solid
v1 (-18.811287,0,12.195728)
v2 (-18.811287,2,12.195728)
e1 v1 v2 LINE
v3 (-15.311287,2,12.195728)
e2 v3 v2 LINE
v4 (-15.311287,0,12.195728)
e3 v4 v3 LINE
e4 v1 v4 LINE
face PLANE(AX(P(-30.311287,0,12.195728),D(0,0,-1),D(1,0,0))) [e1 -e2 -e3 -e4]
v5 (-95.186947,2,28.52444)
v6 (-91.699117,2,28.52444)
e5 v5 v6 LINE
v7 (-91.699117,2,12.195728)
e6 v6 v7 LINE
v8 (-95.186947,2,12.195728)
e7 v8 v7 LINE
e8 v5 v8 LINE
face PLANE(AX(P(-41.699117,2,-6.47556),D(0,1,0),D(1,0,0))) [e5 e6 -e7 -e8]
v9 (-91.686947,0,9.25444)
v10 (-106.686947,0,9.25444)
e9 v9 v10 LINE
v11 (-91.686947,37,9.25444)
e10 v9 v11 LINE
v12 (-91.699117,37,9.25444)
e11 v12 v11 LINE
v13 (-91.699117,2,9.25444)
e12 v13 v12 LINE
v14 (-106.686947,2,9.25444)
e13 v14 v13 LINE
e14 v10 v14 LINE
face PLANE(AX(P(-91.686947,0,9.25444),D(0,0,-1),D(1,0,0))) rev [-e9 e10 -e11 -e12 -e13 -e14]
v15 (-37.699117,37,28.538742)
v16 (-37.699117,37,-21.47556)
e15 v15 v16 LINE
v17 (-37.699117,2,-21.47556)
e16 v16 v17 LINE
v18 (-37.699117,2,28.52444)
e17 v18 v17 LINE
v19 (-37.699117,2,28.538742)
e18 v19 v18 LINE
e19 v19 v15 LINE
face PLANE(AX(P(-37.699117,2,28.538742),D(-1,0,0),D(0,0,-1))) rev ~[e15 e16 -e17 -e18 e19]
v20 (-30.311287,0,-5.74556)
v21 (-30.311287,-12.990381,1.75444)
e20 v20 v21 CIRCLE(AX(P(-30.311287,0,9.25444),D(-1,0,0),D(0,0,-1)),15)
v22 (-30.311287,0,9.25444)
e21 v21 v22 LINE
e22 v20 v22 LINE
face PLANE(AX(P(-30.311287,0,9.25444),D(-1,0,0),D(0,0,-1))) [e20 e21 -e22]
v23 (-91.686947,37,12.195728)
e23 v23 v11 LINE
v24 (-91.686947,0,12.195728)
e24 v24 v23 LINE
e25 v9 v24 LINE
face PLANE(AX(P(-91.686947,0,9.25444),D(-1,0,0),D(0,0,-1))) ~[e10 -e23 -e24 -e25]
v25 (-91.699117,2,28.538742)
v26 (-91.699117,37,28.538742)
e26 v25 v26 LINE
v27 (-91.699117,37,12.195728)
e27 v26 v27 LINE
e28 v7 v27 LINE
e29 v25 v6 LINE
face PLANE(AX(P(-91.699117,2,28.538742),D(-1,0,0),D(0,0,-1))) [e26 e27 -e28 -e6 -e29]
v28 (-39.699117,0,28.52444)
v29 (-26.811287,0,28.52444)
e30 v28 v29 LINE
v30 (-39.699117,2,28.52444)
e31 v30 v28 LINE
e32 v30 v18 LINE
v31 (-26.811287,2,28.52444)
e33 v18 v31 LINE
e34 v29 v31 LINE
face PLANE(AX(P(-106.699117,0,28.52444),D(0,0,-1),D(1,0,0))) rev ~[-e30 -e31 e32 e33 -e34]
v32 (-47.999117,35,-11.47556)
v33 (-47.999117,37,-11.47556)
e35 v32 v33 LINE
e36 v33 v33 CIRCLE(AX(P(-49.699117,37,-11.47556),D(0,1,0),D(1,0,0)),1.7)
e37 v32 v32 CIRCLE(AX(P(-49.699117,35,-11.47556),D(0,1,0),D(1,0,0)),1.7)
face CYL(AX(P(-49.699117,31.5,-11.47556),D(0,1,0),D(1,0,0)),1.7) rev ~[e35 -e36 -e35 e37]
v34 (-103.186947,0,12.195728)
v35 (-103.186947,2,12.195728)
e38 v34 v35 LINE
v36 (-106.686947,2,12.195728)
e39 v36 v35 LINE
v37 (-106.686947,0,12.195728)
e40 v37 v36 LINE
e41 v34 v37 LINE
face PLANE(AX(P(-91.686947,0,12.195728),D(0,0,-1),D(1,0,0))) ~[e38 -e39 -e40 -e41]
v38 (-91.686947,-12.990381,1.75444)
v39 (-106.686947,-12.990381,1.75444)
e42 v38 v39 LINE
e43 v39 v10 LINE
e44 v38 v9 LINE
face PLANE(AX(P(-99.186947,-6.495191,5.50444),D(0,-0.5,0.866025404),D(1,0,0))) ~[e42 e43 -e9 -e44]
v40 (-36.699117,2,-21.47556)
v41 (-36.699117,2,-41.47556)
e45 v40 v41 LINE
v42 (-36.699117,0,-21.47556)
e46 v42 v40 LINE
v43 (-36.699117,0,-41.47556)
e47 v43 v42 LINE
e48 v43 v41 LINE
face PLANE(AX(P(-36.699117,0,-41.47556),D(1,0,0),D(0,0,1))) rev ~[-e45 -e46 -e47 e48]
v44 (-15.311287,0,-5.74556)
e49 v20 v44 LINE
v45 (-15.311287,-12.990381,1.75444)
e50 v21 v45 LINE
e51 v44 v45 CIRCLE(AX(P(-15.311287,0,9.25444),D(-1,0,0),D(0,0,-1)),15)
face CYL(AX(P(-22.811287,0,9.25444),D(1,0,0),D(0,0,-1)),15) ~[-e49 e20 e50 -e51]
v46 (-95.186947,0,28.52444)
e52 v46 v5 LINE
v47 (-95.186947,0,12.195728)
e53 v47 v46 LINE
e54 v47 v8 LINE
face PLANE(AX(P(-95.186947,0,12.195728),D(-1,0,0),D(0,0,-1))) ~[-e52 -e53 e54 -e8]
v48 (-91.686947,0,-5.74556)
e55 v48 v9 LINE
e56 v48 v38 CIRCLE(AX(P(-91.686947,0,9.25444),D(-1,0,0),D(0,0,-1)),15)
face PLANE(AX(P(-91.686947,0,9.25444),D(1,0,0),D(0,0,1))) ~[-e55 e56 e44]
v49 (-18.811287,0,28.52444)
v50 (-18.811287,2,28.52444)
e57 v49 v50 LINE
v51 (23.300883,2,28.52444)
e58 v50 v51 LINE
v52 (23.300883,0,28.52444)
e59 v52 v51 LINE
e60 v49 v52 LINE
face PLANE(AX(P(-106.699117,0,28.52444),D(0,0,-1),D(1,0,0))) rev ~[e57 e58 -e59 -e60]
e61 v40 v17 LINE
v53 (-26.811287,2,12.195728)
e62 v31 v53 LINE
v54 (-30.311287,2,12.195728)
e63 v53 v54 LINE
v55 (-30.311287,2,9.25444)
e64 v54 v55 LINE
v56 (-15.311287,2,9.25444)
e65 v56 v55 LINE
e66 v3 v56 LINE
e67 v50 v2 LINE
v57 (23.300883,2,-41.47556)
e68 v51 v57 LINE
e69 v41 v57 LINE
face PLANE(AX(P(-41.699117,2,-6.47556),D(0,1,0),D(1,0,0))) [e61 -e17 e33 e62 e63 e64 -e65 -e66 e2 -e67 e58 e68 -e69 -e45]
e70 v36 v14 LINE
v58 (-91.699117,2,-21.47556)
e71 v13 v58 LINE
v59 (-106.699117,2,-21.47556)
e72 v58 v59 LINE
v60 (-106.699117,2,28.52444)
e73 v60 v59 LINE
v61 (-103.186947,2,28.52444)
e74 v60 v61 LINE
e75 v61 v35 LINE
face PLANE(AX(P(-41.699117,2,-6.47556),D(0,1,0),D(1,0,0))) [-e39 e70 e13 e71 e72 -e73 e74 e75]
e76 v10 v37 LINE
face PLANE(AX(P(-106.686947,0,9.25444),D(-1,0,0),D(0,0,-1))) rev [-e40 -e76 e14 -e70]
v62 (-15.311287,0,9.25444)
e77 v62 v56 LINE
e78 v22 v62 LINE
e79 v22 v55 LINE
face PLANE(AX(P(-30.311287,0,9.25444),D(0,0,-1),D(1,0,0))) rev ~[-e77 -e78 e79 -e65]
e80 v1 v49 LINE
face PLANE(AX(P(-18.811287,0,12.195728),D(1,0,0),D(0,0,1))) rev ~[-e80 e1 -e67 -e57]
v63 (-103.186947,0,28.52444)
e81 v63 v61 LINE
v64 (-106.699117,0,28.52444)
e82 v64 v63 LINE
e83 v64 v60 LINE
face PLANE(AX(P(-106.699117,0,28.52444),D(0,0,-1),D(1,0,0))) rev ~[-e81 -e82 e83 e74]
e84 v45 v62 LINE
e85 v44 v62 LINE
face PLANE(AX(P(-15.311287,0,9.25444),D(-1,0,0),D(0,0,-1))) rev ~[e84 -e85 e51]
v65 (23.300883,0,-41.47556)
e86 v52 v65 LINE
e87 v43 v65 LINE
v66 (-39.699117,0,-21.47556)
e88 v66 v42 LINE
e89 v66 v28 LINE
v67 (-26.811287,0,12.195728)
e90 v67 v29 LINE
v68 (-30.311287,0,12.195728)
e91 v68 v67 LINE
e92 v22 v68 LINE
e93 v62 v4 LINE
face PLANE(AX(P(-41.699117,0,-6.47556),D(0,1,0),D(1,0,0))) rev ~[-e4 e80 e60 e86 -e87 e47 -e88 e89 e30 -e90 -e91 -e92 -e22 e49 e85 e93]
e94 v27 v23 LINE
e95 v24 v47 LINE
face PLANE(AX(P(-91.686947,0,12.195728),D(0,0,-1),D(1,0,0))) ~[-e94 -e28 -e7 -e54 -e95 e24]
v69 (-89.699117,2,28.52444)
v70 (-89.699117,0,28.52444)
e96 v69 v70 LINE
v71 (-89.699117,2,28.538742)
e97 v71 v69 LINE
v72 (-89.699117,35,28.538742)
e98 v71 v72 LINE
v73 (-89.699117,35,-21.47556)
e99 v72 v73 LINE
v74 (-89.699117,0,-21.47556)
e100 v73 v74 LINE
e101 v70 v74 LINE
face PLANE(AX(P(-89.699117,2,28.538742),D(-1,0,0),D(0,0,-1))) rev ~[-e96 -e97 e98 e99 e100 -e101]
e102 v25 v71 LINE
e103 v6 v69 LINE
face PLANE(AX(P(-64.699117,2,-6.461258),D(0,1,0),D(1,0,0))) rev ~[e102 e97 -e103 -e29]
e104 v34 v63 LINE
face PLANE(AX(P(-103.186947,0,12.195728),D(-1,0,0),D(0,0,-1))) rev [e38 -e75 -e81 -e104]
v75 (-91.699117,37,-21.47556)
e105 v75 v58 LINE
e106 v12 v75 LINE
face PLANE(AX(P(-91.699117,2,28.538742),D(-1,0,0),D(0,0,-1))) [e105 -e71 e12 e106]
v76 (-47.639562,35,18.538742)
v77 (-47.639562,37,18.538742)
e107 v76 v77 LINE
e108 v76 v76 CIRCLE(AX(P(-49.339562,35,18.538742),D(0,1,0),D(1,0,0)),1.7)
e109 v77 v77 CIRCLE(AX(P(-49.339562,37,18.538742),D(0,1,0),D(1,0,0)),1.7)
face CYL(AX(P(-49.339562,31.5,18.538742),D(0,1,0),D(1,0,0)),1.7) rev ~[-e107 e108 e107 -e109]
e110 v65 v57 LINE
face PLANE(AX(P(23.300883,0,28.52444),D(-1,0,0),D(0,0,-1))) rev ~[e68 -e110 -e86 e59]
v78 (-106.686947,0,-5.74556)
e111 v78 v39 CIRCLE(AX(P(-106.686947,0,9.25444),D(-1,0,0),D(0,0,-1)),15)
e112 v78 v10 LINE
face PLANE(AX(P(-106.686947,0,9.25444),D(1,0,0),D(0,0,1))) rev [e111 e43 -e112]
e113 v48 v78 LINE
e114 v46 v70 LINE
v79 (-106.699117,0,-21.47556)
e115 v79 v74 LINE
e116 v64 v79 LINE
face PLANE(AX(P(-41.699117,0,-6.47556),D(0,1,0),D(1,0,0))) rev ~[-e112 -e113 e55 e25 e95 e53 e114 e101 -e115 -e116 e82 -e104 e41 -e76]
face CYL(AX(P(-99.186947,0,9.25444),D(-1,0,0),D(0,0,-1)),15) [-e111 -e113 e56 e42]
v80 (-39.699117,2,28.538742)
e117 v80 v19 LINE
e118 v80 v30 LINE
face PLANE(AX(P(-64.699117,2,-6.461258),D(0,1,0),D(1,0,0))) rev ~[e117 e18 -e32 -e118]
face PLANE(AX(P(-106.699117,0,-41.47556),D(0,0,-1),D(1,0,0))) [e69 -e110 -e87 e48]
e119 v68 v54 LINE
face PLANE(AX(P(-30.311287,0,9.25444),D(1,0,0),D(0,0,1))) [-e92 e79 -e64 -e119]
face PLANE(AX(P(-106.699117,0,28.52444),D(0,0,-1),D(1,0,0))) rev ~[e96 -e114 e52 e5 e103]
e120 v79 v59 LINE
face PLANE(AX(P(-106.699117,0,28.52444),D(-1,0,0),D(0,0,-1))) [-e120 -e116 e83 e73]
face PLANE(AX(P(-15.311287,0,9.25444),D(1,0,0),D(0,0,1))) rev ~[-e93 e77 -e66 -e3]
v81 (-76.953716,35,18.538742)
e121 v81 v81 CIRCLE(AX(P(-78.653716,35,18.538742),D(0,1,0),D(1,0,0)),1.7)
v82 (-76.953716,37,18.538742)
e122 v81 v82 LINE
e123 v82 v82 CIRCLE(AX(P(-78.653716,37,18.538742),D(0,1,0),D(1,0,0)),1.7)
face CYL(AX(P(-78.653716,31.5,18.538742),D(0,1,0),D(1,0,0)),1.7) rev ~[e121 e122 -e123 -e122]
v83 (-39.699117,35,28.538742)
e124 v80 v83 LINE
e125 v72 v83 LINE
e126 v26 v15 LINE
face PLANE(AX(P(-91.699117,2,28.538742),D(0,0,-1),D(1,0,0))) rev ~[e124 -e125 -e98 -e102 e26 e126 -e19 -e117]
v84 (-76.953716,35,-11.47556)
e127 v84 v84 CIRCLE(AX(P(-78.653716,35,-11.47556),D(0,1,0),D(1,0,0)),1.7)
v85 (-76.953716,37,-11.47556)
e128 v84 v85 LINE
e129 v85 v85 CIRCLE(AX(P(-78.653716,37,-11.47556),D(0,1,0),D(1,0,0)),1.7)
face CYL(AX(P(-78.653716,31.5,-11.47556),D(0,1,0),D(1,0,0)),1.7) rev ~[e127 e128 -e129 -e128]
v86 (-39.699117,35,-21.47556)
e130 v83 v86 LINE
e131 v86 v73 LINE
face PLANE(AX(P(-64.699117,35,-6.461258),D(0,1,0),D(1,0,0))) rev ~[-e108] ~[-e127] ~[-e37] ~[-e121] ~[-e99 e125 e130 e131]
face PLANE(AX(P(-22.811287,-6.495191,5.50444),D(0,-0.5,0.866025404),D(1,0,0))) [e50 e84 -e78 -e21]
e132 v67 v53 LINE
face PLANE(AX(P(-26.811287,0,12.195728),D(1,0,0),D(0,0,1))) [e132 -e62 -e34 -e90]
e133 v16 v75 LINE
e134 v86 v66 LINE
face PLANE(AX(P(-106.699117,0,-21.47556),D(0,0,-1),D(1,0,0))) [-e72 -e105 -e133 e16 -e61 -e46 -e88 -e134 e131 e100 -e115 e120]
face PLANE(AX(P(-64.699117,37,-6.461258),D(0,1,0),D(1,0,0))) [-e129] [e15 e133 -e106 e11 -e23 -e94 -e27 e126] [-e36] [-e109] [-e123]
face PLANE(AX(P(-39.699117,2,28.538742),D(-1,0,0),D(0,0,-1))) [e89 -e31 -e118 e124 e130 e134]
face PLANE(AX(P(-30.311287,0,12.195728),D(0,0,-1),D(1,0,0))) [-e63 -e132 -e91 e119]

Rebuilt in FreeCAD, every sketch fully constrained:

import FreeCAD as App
import Part
import Sketcher


def add_polygon(sketch, points):
    """Adds a closed chain of lines whose ends are joined by coincident constraints."""
    first, n = sketch.GeometryCount, len(points)
    for a, b in zip(points, points[1:] + points[:1]):
        sketch.addGeometry(Part.LineSegment(App.Vector(*a, 0), App.Vector(*b, 0)), False)
    for i in range(n):
        sketch.addConstraint(Sketcher.Constraint("Coincident", first + i, 2, first + (i + 1) % n, 1))

doc = App.newDocument("Part")
body = doc.addObject("PartDesign::Body", "Body")

sketch1 = body.newObject("Sketcher::SketchObject", "Sketch")
sketch1.AttachmentSupport = (doc.getObject("XZ_Plane"), [""])
sketch1.MapMode = "FlatFace"
add_polygon(sketch1, [(-107, -41), (-107, 29), (23, 29), (23, -41)])
sketch1.addConstraint([
    Sketcher.Constraint("Vertical", 0),
    Sketcher.Constraint("Horizontal", 1),
    Sketcher.Constraint("Vertical", 2),
    Sketcher.Constraint("Horizontal", 3),
    Sketcher.Constraint("DistanceX", 1, 1, 1, 2, 130.0),
    Sketcher.Constraint("DistanceY", 0, 1, 0, 2, 70.0),
    Sketcher.Constraint("DistanceY", -1, 1, 0, 2, 28.52444),
    Sketcher.Constraint("DistanceX", 0, 2, -1, 1, 106.699117),
])
pad1 = body.newObject("PartDesign::Pad", "Pad")
pad1.Profile = sketch1
pad1.Length = 2
pad1.Reversed = True

sketch2 = body.newObject("Sketcher::SketchObject", "Sketch001")
sketch2.AttachmentSupport = (doc.getObject("XZ_Plane"), [""])
sketch2.MapMode = "FlatFace"
sketch2.AttachmentOffset = App.Placement(App.Vector(0, 0, -2), App.Rotation())
add_polygon(sketch2, [(-92, -41), (-92, 29), (-38, 29), (-38, -41)])
sketch2.addConstraint([
    Sketcher.Constraint("Vertical", 0),
    Sketcher.Constraint("Horizontal", 1),
    Sketcher.Constraint("Vertical", 2),
    Sketcher.Constraint("Horizontal", 3),
    Sketcher.Constraint("DistanceX", 1, 1, 1, 2, 54.0),
    Sketcher.Constraint("DistanceY", 0, 1, 0, 2, 70.0),
    Sketcher.Constraint("DistanceX", 0, 2, -1, 1, 91.699117),
    Sketcher.Constraint("DistanceY", -1, 1, 0, 2, 28.538742),
])
pad2 = body.newObject("PartDesign::Pad", "Pad001")
pad2.Profile = sketch2
pad2.Length = 35
pad2.Reversed = True

sketch3 = body.newObject("Sketcher::SketchObject", "Sketch002")
sketch3.AttachmentSupport = (doc.getObject("XZ_Plane"), [""])
sketch3.MapMode = "FlatFace"
sketch3.AttachmentOffset = App.Placement(App.Vector(0, 0, -2), App.Rotation())
add_polygon(sketch3, [(-90, -41), (-90, 29), (-40, 29), (-40, -41)])
sketch3.addConstraint([
    Sketcher.Constraint("Vertical", 0),
    Sketcher.Constraint("Horizontal", 1),
    Sketcher.Constraint("Vertical", 2),
    Sketcher.Constraint("Horizontal", 3),
    Sketcher.Constraint("DistanceX", 1, 1, 1, 2, 50.0),
    Sketcher.Constraint("DistanceY", 0, 1, 0, 2, 70.0),
    Sketcher.Constraint("DistanceX", 0, 2, -1, 1, 89.699117),
    Sketcher.Constraint("DistanceY", -1, 1, 0, 2, 28.538742),
])
pocket1 = body.newObject("PartDesign::Pocket", "Pocket")
pocket1.Profile = sketch3
pocket1.Type = "TwoLengths"
pocket1.Length = 33
pocket1.Length2 = 2

sketch4 = body.newObject("Sketcher::SketchObject", "Sketch003")
sketch4.AttachmentSupport = (doc.getObject("XY_Plane"), [""])
sketch4.MapMode = "FlatFace"
sketch4.AttachmentOffset = App.Placement(App.Vector(0, 0, -41.47556), App.Rotation())
add_polygon(sketch4, [(-39.7, 2), (-39.7, 0), (-89.7, 0), (-89.7, 2)])
sketch4.addConstraint([
    Sketcher.Constraint("Vertical", 0),
    Sketcher.Constraint("Horizontal", 1),
    Sketcher.Constraint("Vertical", 2),
    Sketcher.Constraint("Horizontal", 3),
    Sketcher.Constraint("PointOnObject", 0, 2, -1),
    Sketcher.Constraint("DistanceX", 1, 2, 1, 1, 50.0),
    Sketcher.Constraint("DistanceY", 0, 2, 0, 1, 2.0),
    Sketcher.Constraint("DistanceX", 0, 2, -1, 1, 39.699117),
])
pocket2 = body.newObject("PartDesign::Pocket", "Pocket001")
pocket2.Profile = sketch4
pocket2.Length = 33
pocket2.Reversed = True

sketch5 = body.newObject("Sketcher::SketchObject", "Sketch004")
sketch5.AttachmentSupport = (doc.getObject("XZ_Plane"), [""])
sketch5.MapMode = "FlatFace"
add_polygon(sketch5, [(-107, -21), (-107, -41), (-37, -41), (-37, -21)])
sketch5.addConstraint([
    Sketcher.Constraint("Vertical", 0),
    Sketcher.Constraint("Horizontal", 1),
    Sketcher.Constraint("Vertical", 2),
    Sketcher.Constraint("Horizontal", 3),
    Sketcher.Constraint("DistanceX", 1, 1, 1, 2, 70.0),
    Sketcher.Constraint("DistanceY", 0, 2, 0, 1, 20.0),
    Sketcher.Constraint("DistanceY", 0, 2, -1, 1, 41.47556),
    Sketcher.Constraint("DistanceX", 0, 2, -1, 1, 106.699117),
])
pocket3 = body.newObject("PartDesign::Pocket", "Pocket002")
pocket3.Profile = sketch5
pocket3.Length = 40

sketch6 = body.newObject("Sketcher::SketchObject", "Sketch005")
sketch6.AttachmentSupport = (doc.getObject("XZ_Plane"), [""])
sketch6.MapMode = "FlatFace"
sketch6.AttachmentOffset = App.Placement(App.Vector(0, 0, -35), App.Rotation())
sketch6.addGeometry([
    Part.Circle(App.Vector(-49.3, 18.5, 0), App.Vector(0, 0, 1), 1.7),
    Part.Circle(App.Vector(-49.7, -11.5, 0), App.Vector(0, 0, 1), 1.7),
    Part.Circle(App.Vector(-78.7, 18.5, 0), App.Vector(0, 0, 1), 1.7),
    Part.Circle(App.Vector(-78.7, -11.5, 0), App.Vector(0, 0, 1), 1.7),
], False)
sketch6.addConstraint([
    Sketcher.Constraint("Equal", 0, 1),
    Sketcher.Constraint("Equal", 1, 2),
    Sketcher.Constraint("Equal", 2, 3),
    Sketcher.Constraint("Horizontal", 0, 3, 2, 3),
    Sketcher.Constraint("Horizontal", 1, 3, 3, 3),
    Sketcher.Constraint("Vertical", 2, 3, 3, 3),
    Sketcher.Constraint("Diameter", 0, 3.4),
    Sketcher.Constraint("DistanceX", 2, 3, 1, 3, 28.954599),
    Sketcher.Constraint("DistanceX", 0, 3, -1, 1, 49.339562),
    Sketcher.Constraint("DistanceY", 1, 3, -1, 1, 11.47556),
    Sketcher.Constraint("DistanceY", -1, 1, 0, 3, 18.538742),
    Sketcher.Constraint("DistanceX", 1, 3, -1, 1, 49.699117),
])
doc.recompute()
hole = body.newObject("PartDesign::Hole", "Hole")
hole.Profile = sketch6
hole.ThreadType = "None"
hole.Diameter = 3.4
hole.DepthType = "Dimension"
hole.Depth = 3.5
hole.DrillPoint = "Angled"
hole.DrillPointAngle = 118

sketch7 = body.newObject("Sketcher::SketchObject", "Sketch006")
sketch7.AttachmentSupport = (doc.getObject("XZ_Plane"), [""])
sketch7.MapMode = "FlatFace"
add_polygon(sketch7, [(-30, 9), (-30, -6), (-15, -6), (-15, 9)])
sketch7.addGeometry(Part.LineSegment(App.Vector(-15, 9, 0), App.Vector(-30, 9, 0)), True)
sketch7.addConstraint([
    Sketcher.Constraint("Vertical", 0),
    Sketcher.Constraint("Horizontal", 1),
    Sketcher.Constraint("Vertical", 2),
    Sketcher.Constraint("Horizontal", 3),
    Sketcher.Constraint("Horizontal", 4),
    Sketcher.Constraint("Coincident", 4, 1, 2, 2),
    Sketcher.Constraint("Vertical", 0, 2, 4, 2),
    Sketcher.Constraint("Equal", 4, 0),
    Sketcher.Constraint("DistanceX", 1, 1, 1, 2, 15.0),
    Sketcher.Constraint("DistanceY", 0, 2, -1, 1, 5.74556),
    Sketcher.Constraint("DistanceX", 0, 2, -1, 1, 30.311287),
])
revolution = body.newObject("PartDesign::Revolution", "Revolution")
revolution.Profile = sketch7
revolution.ReferenceAxis = (sketch7, ["Axis0"])
revolution.Angle = 60

sketch8 = body.newObject("Sketcher::SketchObject", "Sketch007")
sketch8.AttachmentSupport = (doc.getObject("XZ_Plane"), [""])
sketch8.MapMode = "FlatFace"
add_polygon(sketch8, [(-30.3, 12.2), (-30.3, 9.3), (-15.3, 9.3), (-15.3, 12.2)])
sketch8.addConstraint([
    Sketcher.Constraint("Vertical", 0),
    Sketcher.Constraint("Horizontal", 1),
    Sketcher.Constraint("Vertical", 2),
    Sketcher.Constraint("Horizontal", 3),
    Sketcher.Constraint("DistanceX", 1, 1, 1, 2, 15.0),
    Sketcher.Constraint("DistanceY", 0, 2, 0, 1, 2.941288),
    Sketcher.Constraint("DistanceY", -1, 1, 0, 2, 9.25444),
    Sketcher.Constraint("DistanceX", 0, 2, -1, 1, 30.311287),
])
pocket4 = body.newObject("PartDesign::Pocket", "Pocket003")
pocket4.Profile = sketch8
pocket4.Length = 55

sketch9 = body.newObject("Sketcher::SketchObject", "Sketch008")
sketch9.AttachmentSupport = (doc.getObject("XZ_Plane"), [""])
sketch9.MapMode = "FlatFace"
add_polygon(sketch9, [(-27, 29), (-27, 12), (-19, 12), (-19, 29)])
sketch9.addConstraint([
    Sketcher.Constraint("Vertical", 0),
    Sketcher.Constraint("Horizontal", 1),
    Sketcher.Constraint("Vertical", 2),
    Sketcher.Constraint("Horizontal", 3),
    Sketcher.Constraint("DistanceX", 1, 1, 1, 2, 8.0),
    Sketcher.Constraint("DistanceY", 0, 2, 0, 1, 16.328712),
    Sketcher.Constraint("DistanceY", -1, 1, 0, 2, 12.195728),
    Sketcher.Constraint("DistanceX", 0, 2, -1, 1, 26.811287),
])
pocket5 = body.newObject("PartDesign::Pocket", "Pocket004")
pocket5.Profile = sketch9
pocket5.Length = 55
doc.recompute()

datumplane = body.newObject("PartDesign::Plane", "DatumPlane")
datumplane.AttachmentSupport = (doc.getObject("YZ_Plane"), [""])
datumplane.MapMode = "FlatFace"
datumplane.AttachmentOffset = App.Placement(App.Vector(0, 0, -60.999117), App.Rotation())
mirrored = body.newObject("PartDesign::Mirrored", "Mirrored")
mirrored.Originals = [revolution]
mirrored.MirrorPlane = (datumplane, [""])
body.Tip = mirrored
doc.recompute()

datumplane2 = body.newObject("PartDesign::Plane", "DatumPlane001")
datumplane2.AttachmentSupport = (doc.getObject("YZ_Plane"), [""])
datumplane2.MapMode = "FlatFace"
datumplane2.AttachmentOffset = App.Placement(App.Vector(0, 0, -60.999117), App.Rotation())
mirrored2 = body.newObject("PartDesign::Mirrored", "Mirrored001")
mirrored2.Originals = [pocket4, pocket5]
mirrored2.MirrorPlane = (datumplane2, [""])
body.Tip = mirrored2

doc.recompute()
